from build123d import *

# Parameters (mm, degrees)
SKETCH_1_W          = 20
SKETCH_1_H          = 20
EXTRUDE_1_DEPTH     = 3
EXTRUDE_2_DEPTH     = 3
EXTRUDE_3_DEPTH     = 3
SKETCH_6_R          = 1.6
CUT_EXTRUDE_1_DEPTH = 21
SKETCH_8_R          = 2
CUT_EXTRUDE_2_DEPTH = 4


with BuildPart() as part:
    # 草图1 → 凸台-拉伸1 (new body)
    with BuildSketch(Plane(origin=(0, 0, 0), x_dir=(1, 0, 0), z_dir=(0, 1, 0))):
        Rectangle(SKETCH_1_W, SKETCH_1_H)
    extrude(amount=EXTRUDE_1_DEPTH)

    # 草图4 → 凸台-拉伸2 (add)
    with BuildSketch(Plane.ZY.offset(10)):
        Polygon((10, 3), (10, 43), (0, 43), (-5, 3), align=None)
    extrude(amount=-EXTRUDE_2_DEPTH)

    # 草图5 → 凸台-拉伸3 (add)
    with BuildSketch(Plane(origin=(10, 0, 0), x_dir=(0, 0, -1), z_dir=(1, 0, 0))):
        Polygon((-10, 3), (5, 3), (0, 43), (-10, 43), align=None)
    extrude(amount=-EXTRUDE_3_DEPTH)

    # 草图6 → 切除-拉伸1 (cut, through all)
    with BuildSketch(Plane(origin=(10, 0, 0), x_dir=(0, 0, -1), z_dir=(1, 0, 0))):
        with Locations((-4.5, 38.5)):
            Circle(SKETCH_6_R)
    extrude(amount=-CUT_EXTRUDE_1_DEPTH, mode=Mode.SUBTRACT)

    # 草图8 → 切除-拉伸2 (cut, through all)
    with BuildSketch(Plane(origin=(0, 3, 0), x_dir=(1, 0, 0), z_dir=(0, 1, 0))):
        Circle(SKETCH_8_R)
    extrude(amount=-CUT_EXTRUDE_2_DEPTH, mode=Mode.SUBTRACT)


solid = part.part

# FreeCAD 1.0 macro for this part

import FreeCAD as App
import Part
import Sketcher
from FreeCAD import Vector

doc = App.newDocument("Part")
params = doc.addObject("Spreadsheet::Sheet", "Params")
for row, (alias, value) in enumerate([
    ("sketch1_width", "20 mm"),
    ("pad1_length", "3 mm"),
    ("sketch2_width", "40 mm"),
    ("sketch2_height", "10 mm"),
    ("sketch2_height2", "15 mm"),
    ("pad2_length", "3 mm"),
    ("sketch3_width", "40 mm"),
    ("sketch3_height", "15 mm"),
    ("sketch3_height2", "10 mm"),
    ("pad3_length", "3 mm"),
    ("sketch4_diameter", "3.2 mm"),
    ("sketch5_diameter", "4 mm"),
], start=1):
    params.set(f"A{row}", alias)
    params.set(f"B{row}", "=" + value)
    params.setAlias(f"B{row}", alias)

body = doc.addObject("PartDesign::Body", "Body")

sketch1 = body.newObject("Sketcher::SketchObject", "Sketch")
sketch1.AttachmentSupport = (doc.getObject("XZ_Plane"), [""])
sketch1.MapMode = "FlatFace"
sketch1.addGeometry(Part.LineSegment(Vector(-10, -10, 0), Vector(-10, 10, 0)), False)
sketch1.addGeometry(Part.LineSegment(Vector(-10, 10, 0), Vector(10, 10, 0)), False)
sketch1.addGeometry(Part.LineSegment(Vector(10, 10, 0), Vector(10, -10, 0)), False)
sketch1.addGeometry(Part.LineSegment(Vector(10, -10, 0), Vector(-10, -10, 0)), False)
sketch1.addConstraint(Sketcher.Constraint("Coincident", 0, 2, 1, 1))
sketch1.addConstraint(Sketcher.Constraint("Coincident", 1, 2, 2, 1))
sketch1.addConstraint(Sketcher.Constraint("Coincident", 2, 2, 3, 1))
sketch1.addConstraint(Sketcher.Constraint("Coincident", 3, 2, 0, 1))
sketch1.addConstraint(Sketcher.Constraint("Vertical", 0))
sketch1.addConstraint(Sketcher.Constraint("Horizontal", 1))
sketch1.addConstraint(Sketcher.Constraint("Vertical", 2))
sketch1.addConstraint(Sketcher.Constraint("Horizontal", 3))
sketch1.addConstraint(Sketcher.Constraint("Symmetric", 0, 2, 2, 2, -1, 1))
sketch1.addConstraint(Sketcher.Constraint("Equal", 3, 0))
sketch1.addConstraint(Sketcher.Constraint("DistanceX", 1, 1, 1, 2, 20.0))
sketch1.setExpression("Constraints[10]", "Params.sketch1_width")
pad1 = body.newObject("PartDesign::Pad", "Pad")
pad1.Profile = sketch1
pad1.setExpression("Length", "Params.pad1_length")
pad1.Reversed = True

sketch2 = body.newObject("Sketcher::SketchObject", "Sketch001")
sketch2.AttachmentSupport = (doc.getObject("YZ_Plane"), [""])
sketch2.MapMode = "FlatFace"
sketch2.AttachmentOffset = App.Placement(Vector(0, 0, -10), App.Rotation())
sketch2.addGeometry(Part.LineSegment(Vector(3, 10, 0), Vector(43, 10, 0)), False)
sketch2.addGeometry(Part.LineSegment(Vector(43, 10, 0), Vector(43, 0, 0)), False)
sketch2.addGeometry(Part.LineSegment(Vector(43, 0, 0), Vector(3, -5, 0)), False)
sketch2.addGeometry(Part.LineSegment(Vector(3, -5, 0), Vector(3, 10, 0)), False)
sketch2.addConstraint(Sketcher.Constraint("Coincident", 0, 2, 1, 1))
sketch2.addConstraint(Sketcher.Constraint("Coincident", 1, 2, 2, 1))
sketch2.addConstraint(Sketcher.Constraint("Coincident", 2, 2, 3, 1))
sketch2.addConstraint(Sketcher.Constraint("Coincident", 3, 2, 0, 1))
sketch2.addConstraint(Sketcher.Constraint("Horizontal", 0))
sketch2.addConstraint(Sketcher.Constraint("Vertical", 1))
sketch2.addConstraint(Sketcher.Constraint("Vertical", 3))
sketch2.addConstraint(Sketcher.Constraint("PointOnObject", 1, 2, -1))
sketch2.addConstraint(Sketcher.Constraint("DistanceX", 0, 1, 0, 2, 40.0))
sketch2.addConstraint(Sketcher.Constraint("DistanceY", 1, 2, 1, 1, 10.0))
sketch2.addConstraint(Sketcher.Constraint("DistanceY", 3, 1, 3, 2, 15.0))
sketch2.addConstraint(Sketcher.Constraint("DistanceX", -1, 1, 0, 2, 43.0))
sketch2.setExpression("Constraints[8]", "Params.sketch2_width")
sketch2.setExpression("Constraints[9]", "Params.sketch2_height")
sketch2.setExpression("Constraints[10]", "Params.sketch2_height2")
pad2 = body.newObject("PartDesign::Pad", "Pad001")
pad2.Profile = sketch2
pad2.setExpression("Length", "Params.pad2_length")

sketch3 = body.newObject("Sketcher::SketchObject", "Sketch002")
sketch3.AttachmentSupport = (doc.getObject("YZ_Plane"), [""])
sketch3.MapMode = "FlatFace"
sketch3.AttachmentOffset = App.Placement(Vector(0, 0, 10), App.Rotation())
sketch3.addGeometry(Part.LineSegment(Vector(3, 10, 0), Vector(3, -5, 0)), False)
sketch3.addGeometry(Part.LineSegment(Vector(3, -5, 0), Vector(43, 0, 0)), False)
sketch3.addGeometry(Part.LineSegment(Vector(43, 0, 0), Vector(43, 10, 0)), False)
sketch3.addGeometry(Part.LineSegment(Vector(43, 10, 0), Vector(3, 10, 0)), False)
sketch3.addConstraint(Sketcher.Constraint("Coincident", 0, 2, 1, 1))
sketch3.addConstraint(Sketcher.Constraint("Coincident", 1, 2, 2, 1))
sketch3.addConstraint(Sketcher.Constraint("Coincident", 2, 2, 3, 1))
sketch3.addConstraint(Sketcher.Constraint("Coincident", 3, 2, 0, 1))
sketch3.addConstraint(Sketcher.Constraint("Vertical", 0))
sketch3.addConstraint(Sketcher.Constraint("Vertical", 2))
sketch3.addConstraint(Sketcher.Constraint("Horizontal", 3))
sketch3.addConstraint(Sketcher.Constraint("PointOnObject", 1, 2, -1))
sketch3.addConstraint(Sketcher.Constraint("DistanceX", 3, 2, 3, 1, 40.0))
sketch3.addConstraint(Sketcher.Constraint("DistanceY", 0, 2, 0, 1, 15.0))
sketch3.addConstraint(Sketcher.Constraint("DistanceY", 2, 1, 2, 2, 10.0))
sketch3.addConstraint(Sketcher.Constraint("DistanceX", -1, 1, 0, 2, 3.0))
sketch3.setExpression("Constraints[8]", "Params.sketch3_width")
sketch3.setExpression("Constraints[9]", "Params.sketch3_height")
sketch3.setExpression("Constraints[10]", "Params.sketch3_height2")
pad3 = body.newObject("PartDesign::Pad", "Pad002")
pad3.Profile = sketch3
pad3.setExpression("Length", "Params.pad3_length")
pad3.Reversed = True

sketch4 = body.newObject("Sketcher::SketchObject", "Sketch003")
sketch4.AttachmentSupport = (doc.getObject("YZ_Plane"), [""])
sketch4.MapMode = "FlatFace"
sketch4.AttachmentOffset = App.Placement(Vector(0, 0, 10), App.Rotation())
sketch4.addGeometry(Part.Circle(Vector(38.5, 4.5, 0), Vector(0, 0, 1), 1.6), False)
sketch4.addConstraint(Sketcher.Constraint("Diameter", 0, 3.2))
sketch4.addConstraint(Sketcher.Constraint("DistanceX", -1, 1, 0, 3, 38.5))
sketch4.addConstraint(Sketcher.Constraint("DistanceY", -1, 1, 0, 3, 4.5))
sketch4.setExpression("Constraints[0]", "Params.sketch4_diameter")
pocket1 = body.newObject("PartDesign::Pocket", "Pocket")
pocket1.Profile = sketch4
pocket1.Type = "ThroughAll"

sketch5 = body.newObject("Sketcher::SketchObject", "Sketch004")
sketch5.AttachmentSupport = (doc.getObject("XZ_Plane"), [""])
sketch5.MapMode = "FlatFace"
sketch5.AttachmentOffset = App.Placement(Vector(0, 0, -3), App.Rotation())
sketch5.addGeometry(Part.Circle(Vector(0, 0, 0), Vector(0, 0, 1), 2), False)
sketch5.addConstraint(Sketcher.Constraint("Coincident", 0, 3, -1, 1))
sketch5.addConstraint(Sketcher.Constraint("Diameter", 0, 4.0))
sketch5.setExpression("Constraints[1]", "Params.sketch5_diameter")
pocket2 = body.newObject("PartDesign::Pocket", "Pocket001")
pocket2.Profile = sketch5
pocket2.Type = "ThroughAll"
pocket2.Reversed = True

doc.recompute()
